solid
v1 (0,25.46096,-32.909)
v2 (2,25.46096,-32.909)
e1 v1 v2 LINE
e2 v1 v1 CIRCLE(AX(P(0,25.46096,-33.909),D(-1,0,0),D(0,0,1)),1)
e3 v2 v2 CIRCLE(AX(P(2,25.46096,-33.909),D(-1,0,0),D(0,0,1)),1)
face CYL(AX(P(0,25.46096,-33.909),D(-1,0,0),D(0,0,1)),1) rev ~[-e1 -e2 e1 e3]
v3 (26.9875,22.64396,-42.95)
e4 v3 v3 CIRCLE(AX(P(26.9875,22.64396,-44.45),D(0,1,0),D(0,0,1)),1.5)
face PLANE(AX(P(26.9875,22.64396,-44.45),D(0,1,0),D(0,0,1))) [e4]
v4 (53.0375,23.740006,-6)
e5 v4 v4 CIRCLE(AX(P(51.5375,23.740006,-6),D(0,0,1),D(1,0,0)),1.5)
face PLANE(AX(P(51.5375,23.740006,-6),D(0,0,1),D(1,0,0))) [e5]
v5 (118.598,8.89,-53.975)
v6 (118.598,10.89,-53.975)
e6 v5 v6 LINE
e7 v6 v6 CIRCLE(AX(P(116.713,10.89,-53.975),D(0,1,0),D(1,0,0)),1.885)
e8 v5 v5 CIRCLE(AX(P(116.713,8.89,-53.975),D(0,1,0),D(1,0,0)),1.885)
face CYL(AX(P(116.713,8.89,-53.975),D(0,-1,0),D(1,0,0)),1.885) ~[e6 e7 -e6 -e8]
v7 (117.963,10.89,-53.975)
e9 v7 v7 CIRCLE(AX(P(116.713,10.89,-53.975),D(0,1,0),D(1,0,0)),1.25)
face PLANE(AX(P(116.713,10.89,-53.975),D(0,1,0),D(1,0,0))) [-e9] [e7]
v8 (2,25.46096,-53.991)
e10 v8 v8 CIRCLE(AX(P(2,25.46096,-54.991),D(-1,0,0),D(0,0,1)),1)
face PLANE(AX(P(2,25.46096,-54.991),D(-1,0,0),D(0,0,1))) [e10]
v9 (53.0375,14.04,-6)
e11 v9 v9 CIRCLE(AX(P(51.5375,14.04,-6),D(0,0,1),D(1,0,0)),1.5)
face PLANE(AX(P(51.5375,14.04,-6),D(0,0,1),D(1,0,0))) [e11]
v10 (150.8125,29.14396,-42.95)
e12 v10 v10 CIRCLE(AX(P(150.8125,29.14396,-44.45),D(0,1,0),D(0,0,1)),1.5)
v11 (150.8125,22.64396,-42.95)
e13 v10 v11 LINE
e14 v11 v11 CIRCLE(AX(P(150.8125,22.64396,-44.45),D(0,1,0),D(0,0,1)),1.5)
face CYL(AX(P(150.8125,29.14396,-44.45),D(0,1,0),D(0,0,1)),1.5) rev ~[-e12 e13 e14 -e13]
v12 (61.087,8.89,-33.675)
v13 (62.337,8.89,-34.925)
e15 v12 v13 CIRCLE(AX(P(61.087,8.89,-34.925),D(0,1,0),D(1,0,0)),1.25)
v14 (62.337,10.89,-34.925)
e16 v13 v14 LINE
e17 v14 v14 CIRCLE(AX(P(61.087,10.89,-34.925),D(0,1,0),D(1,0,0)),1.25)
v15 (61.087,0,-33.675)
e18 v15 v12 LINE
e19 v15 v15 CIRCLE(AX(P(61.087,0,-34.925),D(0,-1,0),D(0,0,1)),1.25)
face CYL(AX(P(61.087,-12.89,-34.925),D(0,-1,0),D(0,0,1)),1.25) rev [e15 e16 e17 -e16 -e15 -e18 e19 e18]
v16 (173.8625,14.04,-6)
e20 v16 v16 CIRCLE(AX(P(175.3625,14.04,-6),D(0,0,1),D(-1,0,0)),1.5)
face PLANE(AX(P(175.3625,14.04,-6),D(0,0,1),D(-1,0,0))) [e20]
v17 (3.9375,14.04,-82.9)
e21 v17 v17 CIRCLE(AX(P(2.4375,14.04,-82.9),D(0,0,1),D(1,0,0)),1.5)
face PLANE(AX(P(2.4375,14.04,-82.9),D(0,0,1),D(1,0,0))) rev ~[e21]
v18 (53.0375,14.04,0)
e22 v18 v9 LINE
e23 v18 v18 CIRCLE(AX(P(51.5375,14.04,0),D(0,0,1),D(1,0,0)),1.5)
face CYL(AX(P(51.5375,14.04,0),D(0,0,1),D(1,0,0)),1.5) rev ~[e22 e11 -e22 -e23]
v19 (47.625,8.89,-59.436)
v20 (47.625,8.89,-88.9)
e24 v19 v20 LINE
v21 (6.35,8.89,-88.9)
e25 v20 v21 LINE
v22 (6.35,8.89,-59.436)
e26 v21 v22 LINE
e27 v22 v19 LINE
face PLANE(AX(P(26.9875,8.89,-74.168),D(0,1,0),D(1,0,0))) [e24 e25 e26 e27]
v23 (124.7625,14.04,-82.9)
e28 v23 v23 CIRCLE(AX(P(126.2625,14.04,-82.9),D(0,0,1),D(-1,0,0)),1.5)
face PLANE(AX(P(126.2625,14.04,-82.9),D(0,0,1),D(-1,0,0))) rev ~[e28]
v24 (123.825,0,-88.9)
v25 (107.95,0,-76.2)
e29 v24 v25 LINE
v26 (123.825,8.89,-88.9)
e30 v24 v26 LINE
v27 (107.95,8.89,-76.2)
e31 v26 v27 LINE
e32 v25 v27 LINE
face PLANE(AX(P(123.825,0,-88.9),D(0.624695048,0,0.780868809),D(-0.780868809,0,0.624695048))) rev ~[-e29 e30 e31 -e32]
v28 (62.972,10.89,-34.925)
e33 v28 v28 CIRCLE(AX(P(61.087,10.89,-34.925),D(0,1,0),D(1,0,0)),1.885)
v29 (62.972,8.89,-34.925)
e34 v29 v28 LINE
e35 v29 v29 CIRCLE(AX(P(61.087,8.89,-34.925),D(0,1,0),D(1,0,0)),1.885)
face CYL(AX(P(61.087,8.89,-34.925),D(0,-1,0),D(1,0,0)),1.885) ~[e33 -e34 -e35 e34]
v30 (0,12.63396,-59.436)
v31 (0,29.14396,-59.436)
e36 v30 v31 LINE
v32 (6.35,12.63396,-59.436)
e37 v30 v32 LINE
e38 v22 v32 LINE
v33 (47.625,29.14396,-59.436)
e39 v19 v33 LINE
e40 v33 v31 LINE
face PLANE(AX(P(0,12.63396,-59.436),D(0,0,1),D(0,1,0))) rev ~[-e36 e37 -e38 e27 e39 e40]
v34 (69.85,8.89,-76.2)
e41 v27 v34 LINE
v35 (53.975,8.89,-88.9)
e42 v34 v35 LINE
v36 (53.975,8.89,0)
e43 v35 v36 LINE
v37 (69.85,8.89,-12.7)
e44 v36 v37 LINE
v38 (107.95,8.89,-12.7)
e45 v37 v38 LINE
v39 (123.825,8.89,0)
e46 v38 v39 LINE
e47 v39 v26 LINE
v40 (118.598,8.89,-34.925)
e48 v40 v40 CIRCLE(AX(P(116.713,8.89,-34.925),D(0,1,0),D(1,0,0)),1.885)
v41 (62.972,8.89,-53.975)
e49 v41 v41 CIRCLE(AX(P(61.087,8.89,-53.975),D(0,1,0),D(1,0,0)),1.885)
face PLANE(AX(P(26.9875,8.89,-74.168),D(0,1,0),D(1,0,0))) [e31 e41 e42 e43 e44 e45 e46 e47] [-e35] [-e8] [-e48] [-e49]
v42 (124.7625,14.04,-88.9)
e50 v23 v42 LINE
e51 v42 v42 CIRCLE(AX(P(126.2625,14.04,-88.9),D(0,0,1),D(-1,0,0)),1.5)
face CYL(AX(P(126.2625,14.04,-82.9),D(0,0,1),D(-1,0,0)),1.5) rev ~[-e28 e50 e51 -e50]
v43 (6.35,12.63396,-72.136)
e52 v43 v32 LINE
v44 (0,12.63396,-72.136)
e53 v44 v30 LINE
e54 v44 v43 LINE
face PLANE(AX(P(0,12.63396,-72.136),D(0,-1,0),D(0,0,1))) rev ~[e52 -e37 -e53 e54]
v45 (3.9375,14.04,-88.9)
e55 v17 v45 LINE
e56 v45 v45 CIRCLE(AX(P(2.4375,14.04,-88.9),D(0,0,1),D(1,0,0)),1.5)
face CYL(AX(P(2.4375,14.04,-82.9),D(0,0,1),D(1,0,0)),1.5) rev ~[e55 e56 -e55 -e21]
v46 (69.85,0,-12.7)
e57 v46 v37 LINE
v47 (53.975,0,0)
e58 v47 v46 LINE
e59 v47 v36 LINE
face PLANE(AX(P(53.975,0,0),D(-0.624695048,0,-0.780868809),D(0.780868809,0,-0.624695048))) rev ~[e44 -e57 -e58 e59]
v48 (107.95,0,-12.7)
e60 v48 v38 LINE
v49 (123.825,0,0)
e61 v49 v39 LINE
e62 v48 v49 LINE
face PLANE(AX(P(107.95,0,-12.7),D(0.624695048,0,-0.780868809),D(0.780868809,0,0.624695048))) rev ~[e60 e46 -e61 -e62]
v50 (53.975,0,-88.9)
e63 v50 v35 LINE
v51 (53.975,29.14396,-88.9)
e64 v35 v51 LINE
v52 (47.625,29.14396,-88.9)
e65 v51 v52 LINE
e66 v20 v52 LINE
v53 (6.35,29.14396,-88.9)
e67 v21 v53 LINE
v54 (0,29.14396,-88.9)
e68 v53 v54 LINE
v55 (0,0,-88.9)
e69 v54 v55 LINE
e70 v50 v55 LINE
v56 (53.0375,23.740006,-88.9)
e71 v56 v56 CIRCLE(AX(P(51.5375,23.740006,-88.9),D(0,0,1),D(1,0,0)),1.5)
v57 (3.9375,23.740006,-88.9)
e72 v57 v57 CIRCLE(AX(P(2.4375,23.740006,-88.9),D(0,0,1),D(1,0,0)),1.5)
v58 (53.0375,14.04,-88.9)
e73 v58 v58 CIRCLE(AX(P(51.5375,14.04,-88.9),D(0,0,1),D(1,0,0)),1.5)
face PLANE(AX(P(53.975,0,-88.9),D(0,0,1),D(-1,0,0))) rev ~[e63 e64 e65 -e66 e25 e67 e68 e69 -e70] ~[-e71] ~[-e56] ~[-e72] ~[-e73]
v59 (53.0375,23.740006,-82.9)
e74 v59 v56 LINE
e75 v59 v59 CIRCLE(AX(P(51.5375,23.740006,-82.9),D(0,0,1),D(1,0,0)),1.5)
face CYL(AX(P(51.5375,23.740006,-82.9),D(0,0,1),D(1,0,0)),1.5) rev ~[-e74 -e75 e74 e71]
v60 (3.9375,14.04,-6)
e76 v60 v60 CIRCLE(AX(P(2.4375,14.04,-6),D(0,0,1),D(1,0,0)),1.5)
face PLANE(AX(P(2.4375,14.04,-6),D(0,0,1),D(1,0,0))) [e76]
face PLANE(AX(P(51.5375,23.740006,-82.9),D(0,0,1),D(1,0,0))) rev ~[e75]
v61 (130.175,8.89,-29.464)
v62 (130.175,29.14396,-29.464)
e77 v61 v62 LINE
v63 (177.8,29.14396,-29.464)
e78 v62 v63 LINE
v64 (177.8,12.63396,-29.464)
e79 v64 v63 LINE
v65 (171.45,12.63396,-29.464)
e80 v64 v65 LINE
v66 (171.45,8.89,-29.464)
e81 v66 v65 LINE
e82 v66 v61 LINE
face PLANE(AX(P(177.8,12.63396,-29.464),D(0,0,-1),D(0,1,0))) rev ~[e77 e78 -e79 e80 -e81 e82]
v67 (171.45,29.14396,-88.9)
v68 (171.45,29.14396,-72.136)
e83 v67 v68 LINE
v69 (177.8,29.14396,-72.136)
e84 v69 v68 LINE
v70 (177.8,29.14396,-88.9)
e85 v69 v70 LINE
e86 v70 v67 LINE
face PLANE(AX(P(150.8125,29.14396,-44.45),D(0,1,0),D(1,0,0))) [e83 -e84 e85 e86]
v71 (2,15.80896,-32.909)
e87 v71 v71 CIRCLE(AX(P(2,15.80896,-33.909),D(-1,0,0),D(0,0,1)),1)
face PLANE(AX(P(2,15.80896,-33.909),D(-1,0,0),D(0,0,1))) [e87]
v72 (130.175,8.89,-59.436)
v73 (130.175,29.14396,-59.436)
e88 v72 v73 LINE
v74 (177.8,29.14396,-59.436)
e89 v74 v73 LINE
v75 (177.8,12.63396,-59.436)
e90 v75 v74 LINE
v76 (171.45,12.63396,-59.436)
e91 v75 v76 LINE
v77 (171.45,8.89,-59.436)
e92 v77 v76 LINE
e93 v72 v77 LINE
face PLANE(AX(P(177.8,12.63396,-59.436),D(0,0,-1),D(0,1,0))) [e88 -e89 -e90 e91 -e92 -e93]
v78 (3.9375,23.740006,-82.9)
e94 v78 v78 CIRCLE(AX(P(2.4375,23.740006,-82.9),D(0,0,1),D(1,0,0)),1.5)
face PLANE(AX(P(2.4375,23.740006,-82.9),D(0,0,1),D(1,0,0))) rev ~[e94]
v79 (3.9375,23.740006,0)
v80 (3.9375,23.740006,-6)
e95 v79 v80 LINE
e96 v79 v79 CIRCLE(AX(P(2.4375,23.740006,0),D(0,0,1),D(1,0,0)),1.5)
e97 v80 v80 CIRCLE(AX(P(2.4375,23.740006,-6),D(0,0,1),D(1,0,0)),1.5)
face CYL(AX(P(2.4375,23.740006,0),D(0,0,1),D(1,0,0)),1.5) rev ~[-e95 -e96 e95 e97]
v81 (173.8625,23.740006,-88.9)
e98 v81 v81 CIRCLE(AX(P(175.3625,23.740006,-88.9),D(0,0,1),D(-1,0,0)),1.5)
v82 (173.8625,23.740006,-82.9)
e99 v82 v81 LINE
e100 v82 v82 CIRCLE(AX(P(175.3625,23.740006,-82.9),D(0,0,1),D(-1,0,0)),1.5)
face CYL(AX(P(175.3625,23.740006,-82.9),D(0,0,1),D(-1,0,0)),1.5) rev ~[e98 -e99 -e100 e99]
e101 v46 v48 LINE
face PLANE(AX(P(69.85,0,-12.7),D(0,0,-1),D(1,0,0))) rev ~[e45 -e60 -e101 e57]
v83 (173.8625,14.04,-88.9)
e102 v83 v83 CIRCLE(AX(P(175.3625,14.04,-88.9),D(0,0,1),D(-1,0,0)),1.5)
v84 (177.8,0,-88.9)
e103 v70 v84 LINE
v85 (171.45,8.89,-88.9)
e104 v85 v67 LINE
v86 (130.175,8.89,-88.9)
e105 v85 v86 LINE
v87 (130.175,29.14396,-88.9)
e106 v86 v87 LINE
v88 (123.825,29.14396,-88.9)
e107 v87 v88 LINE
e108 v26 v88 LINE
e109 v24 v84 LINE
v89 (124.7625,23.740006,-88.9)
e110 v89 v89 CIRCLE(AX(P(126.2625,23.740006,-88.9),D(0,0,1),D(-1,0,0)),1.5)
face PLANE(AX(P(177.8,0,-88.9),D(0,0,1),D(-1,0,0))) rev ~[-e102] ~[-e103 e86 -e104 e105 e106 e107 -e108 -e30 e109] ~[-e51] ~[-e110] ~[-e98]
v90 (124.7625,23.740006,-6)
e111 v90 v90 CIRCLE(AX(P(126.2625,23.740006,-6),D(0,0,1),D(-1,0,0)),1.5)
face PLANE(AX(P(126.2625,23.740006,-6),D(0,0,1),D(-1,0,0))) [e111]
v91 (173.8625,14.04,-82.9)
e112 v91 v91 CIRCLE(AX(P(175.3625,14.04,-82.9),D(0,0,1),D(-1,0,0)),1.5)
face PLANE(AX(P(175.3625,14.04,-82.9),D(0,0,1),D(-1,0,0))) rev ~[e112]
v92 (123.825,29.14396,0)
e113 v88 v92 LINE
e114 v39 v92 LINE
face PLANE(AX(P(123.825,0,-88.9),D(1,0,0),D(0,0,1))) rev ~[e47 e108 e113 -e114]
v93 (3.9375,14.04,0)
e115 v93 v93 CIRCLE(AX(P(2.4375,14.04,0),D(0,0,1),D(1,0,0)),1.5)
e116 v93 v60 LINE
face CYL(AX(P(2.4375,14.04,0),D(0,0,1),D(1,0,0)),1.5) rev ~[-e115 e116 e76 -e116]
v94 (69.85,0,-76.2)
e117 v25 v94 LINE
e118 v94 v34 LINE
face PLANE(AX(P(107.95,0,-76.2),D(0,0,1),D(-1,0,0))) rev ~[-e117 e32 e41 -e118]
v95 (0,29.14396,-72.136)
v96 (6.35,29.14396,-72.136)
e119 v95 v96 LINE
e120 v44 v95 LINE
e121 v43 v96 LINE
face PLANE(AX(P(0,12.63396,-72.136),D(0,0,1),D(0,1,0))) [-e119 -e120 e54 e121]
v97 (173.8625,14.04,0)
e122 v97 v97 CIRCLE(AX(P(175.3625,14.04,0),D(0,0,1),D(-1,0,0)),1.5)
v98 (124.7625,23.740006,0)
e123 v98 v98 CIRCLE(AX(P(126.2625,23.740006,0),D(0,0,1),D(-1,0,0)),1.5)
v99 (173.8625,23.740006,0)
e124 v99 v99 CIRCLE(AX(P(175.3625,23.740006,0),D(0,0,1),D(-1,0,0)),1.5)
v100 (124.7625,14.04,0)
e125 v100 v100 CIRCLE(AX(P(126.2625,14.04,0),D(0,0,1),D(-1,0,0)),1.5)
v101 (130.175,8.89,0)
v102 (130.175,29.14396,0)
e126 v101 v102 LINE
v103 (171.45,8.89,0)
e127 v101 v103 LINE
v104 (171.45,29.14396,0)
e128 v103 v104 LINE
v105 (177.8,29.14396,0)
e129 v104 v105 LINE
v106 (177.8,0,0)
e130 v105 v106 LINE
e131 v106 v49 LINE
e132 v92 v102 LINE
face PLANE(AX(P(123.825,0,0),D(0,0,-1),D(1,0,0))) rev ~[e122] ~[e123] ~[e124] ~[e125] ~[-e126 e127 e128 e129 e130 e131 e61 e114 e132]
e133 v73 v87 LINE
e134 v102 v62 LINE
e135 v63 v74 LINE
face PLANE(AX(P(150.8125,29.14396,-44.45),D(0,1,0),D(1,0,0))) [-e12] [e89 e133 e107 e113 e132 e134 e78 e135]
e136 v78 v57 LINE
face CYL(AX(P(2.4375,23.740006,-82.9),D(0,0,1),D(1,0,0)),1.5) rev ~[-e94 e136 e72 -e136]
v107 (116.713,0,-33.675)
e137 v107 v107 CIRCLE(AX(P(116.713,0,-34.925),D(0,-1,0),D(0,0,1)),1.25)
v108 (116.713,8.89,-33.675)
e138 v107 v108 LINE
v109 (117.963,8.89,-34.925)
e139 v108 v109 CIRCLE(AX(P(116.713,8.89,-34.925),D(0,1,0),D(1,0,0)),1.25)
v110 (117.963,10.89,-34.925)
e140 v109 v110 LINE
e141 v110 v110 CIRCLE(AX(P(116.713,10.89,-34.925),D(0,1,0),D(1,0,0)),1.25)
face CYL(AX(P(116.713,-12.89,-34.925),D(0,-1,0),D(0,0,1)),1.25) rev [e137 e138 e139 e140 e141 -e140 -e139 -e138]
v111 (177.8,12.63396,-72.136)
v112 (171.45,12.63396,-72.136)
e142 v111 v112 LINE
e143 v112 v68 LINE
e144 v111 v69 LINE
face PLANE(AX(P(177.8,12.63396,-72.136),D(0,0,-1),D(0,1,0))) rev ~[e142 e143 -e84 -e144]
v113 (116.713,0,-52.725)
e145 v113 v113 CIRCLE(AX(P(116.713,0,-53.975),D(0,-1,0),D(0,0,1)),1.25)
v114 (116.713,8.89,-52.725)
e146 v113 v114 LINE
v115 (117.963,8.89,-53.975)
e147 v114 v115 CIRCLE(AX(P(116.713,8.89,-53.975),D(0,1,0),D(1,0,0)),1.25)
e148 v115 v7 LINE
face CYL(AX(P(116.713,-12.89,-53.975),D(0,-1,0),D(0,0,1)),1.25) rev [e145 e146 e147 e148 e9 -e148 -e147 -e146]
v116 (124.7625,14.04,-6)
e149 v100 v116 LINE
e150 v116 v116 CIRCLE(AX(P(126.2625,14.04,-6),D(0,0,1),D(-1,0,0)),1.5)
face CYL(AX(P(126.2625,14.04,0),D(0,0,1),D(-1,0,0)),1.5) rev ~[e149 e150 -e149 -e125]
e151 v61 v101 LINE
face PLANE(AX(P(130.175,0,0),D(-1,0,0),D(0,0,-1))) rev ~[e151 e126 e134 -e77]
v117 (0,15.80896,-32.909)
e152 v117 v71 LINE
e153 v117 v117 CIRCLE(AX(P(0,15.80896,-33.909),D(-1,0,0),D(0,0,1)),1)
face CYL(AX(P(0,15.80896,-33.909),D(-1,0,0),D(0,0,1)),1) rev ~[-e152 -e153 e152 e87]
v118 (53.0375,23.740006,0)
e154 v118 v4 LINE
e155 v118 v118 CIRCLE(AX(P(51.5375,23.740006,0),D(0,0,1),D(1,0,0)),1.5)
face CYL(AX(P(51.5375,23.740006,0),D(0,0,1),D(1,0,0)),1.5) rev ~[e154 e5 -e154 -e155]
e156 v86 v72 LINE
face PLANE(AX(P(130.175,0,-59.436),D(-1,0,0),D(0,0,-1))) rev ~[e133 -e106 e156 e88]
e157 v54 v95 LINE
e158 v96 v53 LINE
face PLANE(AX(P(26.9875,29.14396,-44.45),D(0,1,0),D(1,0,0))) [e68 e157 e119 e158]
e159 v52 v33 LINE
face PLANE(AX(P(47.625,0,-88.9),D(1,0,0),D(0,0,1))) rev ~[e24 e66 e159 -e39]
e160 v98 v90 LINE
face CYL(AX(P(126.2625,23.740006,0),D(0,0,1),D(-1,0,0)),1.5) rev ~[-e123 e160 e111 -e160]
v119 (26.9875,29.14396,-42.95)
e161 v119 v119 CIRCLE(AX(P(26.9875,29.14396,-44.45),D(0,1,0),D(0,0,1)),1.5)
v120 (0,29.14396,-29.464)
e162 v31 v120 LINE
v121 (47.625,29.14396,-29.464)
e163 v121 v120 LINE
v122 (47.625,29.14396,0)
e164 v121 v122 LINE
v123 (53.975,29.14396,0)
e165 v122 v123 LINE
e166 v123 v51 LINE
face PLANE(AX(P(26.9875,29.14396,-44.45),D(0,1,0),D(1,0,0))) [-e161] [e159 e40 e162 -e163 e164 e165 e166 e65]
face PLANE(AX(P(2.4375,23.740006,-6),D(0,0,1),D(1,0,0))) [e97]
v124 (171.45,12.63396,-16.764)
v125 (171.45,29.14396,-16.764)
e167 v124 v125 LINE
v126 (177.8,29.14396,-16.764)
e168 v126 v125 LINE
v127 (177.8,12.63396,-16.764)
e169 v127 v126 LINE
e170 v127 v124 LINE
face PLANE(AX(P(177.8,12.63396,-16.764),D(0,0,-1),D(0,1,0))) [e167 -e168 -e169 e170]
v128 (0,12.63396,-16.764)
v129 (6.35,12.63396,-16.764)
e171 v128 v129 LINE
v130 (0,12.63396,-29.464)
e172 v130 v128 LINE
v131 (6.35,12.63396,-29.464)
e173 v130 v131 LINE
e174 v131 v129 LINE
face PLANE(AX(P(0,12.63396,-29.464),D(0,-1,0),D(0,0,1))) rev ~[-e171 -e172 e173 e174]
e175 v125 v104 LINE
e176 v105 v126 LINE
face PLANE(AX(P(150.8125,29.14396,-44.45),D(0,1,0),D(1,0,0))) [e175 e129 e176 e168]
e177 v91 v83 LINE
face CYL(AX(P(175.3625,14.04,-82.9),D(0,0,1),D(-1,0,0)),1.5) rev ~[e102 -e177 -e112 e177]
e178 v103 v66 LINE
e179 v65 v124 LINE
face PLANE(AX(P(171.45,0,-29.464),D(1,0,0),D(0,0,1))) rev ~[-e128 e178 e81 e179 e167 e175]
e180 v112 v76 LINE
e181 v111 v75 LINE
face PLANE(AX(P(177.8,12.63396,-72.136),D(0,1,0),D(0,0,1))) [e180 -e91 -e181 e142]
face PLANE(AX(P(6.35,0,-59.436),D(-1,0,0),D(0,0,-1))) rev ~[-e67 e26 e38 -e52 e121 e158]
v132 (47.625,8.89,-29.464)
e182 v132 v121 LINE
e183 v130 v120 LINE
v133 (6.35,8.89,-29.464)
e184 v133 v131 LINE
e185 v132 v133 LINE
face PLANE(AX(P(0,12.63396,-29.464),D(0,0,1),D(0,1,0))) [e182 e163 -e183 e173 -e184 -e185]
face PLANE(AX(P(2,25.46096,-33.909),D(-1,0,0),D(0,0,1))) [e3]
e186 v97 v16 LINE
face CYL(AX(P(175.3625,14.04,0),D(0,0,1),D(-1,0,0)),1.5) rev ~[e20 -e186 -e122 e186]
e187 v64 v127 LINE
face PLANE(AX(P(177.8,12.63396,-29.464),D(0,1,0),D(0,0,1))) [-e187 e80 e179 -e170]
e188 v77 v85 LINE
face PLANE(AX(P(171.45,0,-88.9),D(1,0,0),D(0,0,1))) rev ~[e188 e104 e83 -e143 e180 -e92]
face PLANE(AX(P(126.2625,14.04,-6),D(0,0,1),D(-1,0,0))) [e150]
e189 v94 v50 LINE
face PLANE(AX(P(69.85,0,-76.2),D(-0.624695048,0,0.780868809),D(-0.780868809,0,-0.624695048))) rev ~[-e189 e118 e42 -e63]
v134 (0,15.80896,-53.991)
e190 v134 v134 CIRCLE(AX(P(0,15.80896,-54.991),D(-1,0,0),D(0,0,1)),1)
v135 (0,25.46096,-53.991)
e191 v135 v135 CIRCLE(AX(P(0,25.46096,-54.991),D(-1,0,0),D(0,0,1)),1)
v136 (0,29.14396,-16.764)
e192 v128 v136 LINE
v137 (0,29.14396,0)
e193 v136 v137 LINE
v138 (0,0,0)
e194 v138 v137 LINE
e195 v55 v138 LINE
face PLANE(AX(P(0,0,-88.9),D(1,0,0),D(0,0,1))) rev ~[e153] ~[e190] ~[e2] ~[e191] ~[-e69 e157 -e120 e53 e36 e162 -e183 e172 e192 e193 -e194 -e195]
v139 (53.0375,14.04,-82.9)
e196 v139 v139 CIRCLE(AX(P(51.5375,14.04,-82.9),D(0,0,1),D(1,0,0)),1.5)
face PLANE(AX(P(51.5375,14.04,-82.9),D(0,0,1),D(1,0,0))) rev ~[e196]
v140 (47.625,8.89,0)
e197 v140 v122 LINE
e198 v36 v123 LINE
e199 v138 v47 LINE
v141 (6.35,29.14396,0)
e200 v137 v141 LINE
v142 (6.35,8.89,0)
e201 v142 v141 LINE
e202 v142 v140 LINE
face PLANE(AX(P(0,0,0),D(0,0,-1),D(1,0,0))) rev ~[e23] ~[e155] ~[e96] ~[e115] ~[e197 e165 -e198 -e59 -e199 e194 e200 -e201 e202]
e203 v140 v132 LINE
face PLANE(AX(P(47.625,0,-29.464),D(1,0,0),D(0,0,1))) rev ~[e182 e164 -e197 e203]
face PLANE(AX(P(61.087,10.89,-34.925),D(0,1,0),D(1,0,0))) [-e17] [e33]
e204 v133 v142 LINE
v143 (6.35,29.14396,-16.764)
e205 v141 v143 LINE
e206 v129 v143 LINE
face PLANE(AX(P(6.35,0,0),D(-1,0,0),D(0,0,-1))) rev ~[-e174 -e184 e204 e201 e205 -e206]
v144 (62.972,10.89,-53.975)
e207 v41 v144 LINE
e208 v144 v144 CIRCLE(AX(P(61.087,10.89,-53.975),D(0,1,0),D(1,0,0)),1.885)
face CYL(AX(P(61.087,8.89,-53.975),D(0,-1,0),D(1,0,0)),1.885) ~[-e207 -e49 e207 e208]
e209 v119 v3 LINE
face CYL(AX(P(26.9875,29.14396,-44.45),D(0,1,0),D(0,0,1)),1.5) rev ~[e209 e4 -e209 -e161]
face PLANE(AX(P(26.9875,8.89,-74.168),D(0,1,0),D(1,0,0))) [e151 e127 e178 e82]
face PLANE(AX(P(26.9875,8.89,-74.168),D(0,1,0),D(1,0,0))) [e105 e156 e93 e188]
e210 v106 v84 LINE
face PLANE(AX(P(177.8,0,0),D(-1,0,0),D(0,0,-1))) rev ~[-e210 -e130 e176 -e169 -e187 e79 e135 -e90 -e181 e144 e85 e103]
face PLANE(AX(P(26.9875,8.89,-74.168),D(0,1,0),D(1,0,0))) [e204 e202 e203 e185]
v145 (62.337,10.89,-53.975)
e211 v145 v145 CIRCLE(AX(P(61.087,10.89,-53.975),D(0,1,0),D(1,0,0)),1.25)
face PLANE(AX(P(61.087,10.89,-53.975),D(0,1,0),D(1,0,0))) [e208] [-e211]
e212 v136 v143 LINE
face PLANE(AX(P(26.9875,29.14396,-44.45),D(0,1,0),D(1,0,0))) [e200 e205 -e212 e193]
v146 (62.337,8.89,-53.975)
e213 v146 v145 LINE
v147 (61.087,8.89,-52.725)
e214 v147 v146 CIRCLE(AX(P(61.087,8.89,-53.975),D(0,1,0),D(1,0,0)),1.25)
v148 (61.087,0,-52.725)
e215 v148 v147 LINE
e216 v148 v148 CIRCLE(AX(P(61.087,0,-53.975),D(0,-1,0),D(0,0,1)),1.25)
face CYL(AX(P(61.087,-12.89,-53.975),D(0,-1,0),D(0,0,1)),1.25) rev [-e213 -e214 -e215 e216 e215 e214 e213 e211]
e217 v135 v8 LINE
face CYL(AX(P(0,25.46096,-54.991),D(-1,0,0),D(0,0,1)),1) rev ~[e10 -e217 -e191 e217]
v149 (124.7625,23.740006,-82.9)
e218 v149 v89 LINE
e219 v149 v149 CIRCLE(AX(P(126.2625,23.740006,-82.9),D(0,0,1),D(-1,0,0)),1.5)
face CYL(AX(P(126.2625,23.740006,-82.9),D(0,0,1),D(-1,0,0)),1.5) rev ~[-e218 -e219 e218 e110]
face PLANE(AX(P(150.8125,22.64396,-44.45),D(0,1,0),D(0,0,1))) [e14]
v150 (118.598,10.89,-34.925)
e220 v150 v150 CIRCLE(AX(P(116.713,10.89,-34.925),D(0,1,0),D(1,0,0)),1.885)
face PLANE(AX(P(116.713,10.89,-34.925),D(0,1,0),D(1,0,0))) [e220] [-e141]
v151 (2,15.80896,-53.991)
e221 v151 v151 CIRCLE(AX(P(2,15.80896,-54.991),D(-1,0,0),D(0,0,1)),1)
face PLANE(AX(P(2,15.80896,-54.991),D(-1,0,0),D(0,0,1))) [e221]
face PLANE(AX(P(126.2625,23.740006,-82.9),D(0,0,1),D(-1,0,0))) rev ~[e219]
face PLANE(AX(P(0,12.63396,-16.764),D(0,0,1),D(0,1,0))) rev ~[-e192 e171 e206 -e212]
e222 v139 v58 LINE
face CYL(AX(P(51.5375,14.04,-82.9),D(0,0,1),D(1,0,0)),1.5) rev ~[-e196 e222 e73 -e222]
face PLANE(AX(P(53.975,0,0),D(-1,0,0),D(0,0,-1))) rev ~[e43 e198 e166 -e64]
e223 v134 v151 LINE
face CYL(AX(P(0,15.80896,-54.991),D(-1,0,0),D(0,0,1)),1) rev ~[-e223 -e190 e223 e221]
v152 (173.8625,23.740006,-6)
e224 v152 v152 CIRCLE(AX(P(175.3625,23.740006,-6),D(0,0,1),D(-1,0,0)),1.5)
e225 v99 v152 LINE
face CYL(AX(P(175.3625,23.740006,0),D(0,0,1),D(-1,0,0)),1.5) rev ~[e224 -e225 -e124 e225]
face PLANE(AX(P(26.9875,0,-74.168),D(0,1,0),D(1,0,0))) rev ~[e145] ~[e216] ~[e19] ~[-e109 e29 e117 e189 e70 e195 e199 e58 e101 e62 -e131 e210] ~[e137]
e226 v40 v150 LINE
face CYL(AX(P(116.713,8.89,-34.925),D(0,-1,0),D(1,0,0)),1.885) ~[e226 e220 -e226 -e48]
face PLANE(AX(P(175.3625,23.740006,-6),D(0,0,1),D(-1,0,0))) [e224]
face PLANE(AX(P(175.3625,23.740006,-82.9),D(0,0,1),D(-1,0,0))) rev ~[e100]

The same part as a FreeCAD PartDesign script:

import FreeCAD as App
import Part
import Sketcher

V = App.Vector
Q = App.Units.Quantity

doc = App.newDocument("Part")
params = doc.addObject("Spreadsheet::Sheet", "Params")
for row, (alias, value) in enumerate([
    ("sketch1_width", "1.5 in"),
    ("sketch1_height", "3.5 in"),
    ("sketch1_width2", "2.125 in"),
    ("pad1_length", "0.35 in"),
    ("sketch2_height", "3.5 in"),
    ("sketch2_width", "0.25 in"),
    ("sketch2_height2", "1.16 in"),
    ("pad2_length", "1.1474 in"),
    ("pocket1_length", "6.5 mm"),
    ("pocket2_length", "6 mm"),
    ("pad3_length", "2 mm"),
    ("pocket3_length", "21.78 mm"),
    ("pocket4_length", "6 mm"),
    ("sketch8_height", "0.5 in"),
    ("sketch8_width", "0.65 in"),
    ("pocket5_length", "0.25 in"),
    ("sketch9_height", "0.5 in"),
    ("sketch9_width", "0.65 in"),
    ("pocket6_length", "0.25 in"),
    ("pocket7_length", "2 mm"),
], start=1):
    params.set(f"A{row}", alias)
    params.set(f"B{row}", "=" + value)
    params.setAlias(f"B{row}", alias)

body = doc.addObject("PartDesign::Body", "Body")

sketch1 = body.newObject("Sketcher::SketchObject", "Sketch")
sketch1.AttachmentSupport = (doc.getObject("XZ_Plane"), [""])
sketch1.MapMode = "FlatFace"
sketch1.addGeometry([
    Part.LineSegment(V(0, -89, 0), V(0, 0, 0)),
    Part.LineSegment(V(0, 0, 0), V(54, 0, 0)),
    Part.LineSegment(V(54, 0, 0), V(70, -13, 0)),
    Part.LineSegment(V(70, -13, 0), V(108, -13, 0)),
    Part.LineSegment(V(108, -13, 0), V(124, 0, 0)),
    Part.LineSegment(V(124, 0, 0), V(178, 0, 0)),
    Part.LineSegment(V(178, 0, 0), V(178, -89, 0)),
    Part.LineSegment(V(178, -89, 0), V(124, -89, 0)),
    Part.LineSegment(V(124, -89, 0), V(108, -76, 0)),
    Part.LineSegment(V(108, -76, 0), V(70, -76, 0)),
    Part.LineSegment(V(70, -76, 0), V(54, -89, 0)),
    Part.LineSegment(V(54, -89, 0), V(0, -89, 0)),
], False)
sketch1.addConstraint([
    Sketcher.Constraint("Coincident", 0, 2, 1, 1),
    Sketcher.Constraint("Coincident", 1, 2, 2, 1),
    Sketcher.Constraint("Coincident", 2, 2, 3, 1),
    Sketcher.Constraint("Coincident", 3, 2, 4, 1),
    Sketcher.Constraint("Coincident", 4, 2, 5, 1),
    Sketcher.Constraint("Coincident", 5, 2, 6, 1),
    Sketcher.Constraint("Coincident", 6, 2, 7, 1),
    Sketcher.Constraint("Coincident", 7, 2, 8, 1),
    Sketcher.Constraint("Coincident", 8, 2, 9, 1),
    Sketcher.Constraint("Coincident", 9, 2, 10, 1),
    Sketcher.Constraint("Coincident", 10, 2, 11, 1),
    Sketcher.Constraint("Coincident", 11, 2, 0, 1),
    Sketcher.Constraint("Vertical", 0),
    Sketcher.Constraint("Horizontal", 1),
    Sketcher.Constraint("Horizontal", 3),
    Sketcher.Constraint("Horizontal", 5),
    Sketcher.Constraint("Vertical", 6),
    Sketcher.Constraint("Horizontal", 7),
    Sketcher.Constraint("Horizontal", 9),
    Sketcher.Constraint("Horizontal", 11),
    Sketcher.Constraint("Coincident", 0, 2, -1, 1),
    Sketcher.Constraint("PointOnObject", 4, 2, -1),
    Sketcher.Constraint("Parallel", 2, 8),
    Sketcher.Constraint("Parallel", 4, 10),
    Sketcher.Constraint("Horizontal", 7, 2, 10, 2),
    Sketcher.Constraint("Vertical", 4, 2, 7, 2),
    Sketcher.Constraint("Vertical", 3, 2, 8, 2),
    Sketcher.Constraint("Vertical", 2, 2, 9, 2),
    Sketcher.Constraint("Vertical", 1, 2, 10, 2),
    Sketcher.Constraint("Equal", 1, 5),
    Sketcher.Constraint("DistanceX", 3, 1, 3, 2, Q("1.5 in")),
    Sketcher.Constraint("DistanceY", 0, 1, 0, 2, Q("3.5 in")),
    Sketcher.Constraint("DistanceX", -1, 1, 5, 2, Q("7 in")),
    Sketcher.Constraint("DistanceY", 8, 2, -1, 1, Q("3 in")),
    Sketcher.Constraint("DistanceX", 1, 1, 1, 2, Q("2.125 in")),
])
sketch1.setExpression("Constraints[30]", "Params.sketch1_width")
sketch1.setExpression("Constraints[31]", "Params.sketch1_height")
sketch1.setExpression("Constraints[34]", "Params.sketch1_width2")
pad1 = body.newObject("PartDesign::Pad", "Pad")
pad1.Profile = sketch1
pad1.setExpression("Length", "Params.pad1_length")
pad1.Reversed = True

sketch2 = body.newObject("Sketcher::SketchObject", "Sketch001")
sketch2.AttachmentSupport = (doc.getObject("XZ_Plane"), [""])
sketch2.MapMode = "FlatFace"
sketch2.addGeometry([
    Part.LineSegment(V(0, -89, 0), V(0, 0, 0)),
    Part.LineSegment(V(0, 0, 0), V(6, 0, 0)),
    Part.LineSegment(V(6, 0, 0), V(6, -29, 0)),
    Part.LineSegment(V(6, -29, 0), V(48, -29, 0)),
    Part.LineSegment(V(48, -29, 0), V(48, 0, 0)),
    Part.LineSegment(V(48, 0, 0), V(54, 0, 0)),
    Part.LineSegment(V(54, 0, 0), V(54, -89, 0)),
    Part.LineSegment(V(54, -89, 0), V(48, -89, 0)),
    Part.LineSegment(V(48, -89, 0), V(48, -59, 0)),
    Part.LineSegment(V(48, -59, 0), V(6, -59, 0)),
    Part.LineSegment(V(6, -59, 0), V(6, -89, 0)),
    Part.LineSegment(V(6, -89, 0), V(0, -89, 0)),
    Part.LineSegment(V(124, 0, 0), V(130, 0, 0)),
    Part.LineSegment(V(130, 0, 0), V(130, -29, 0)),
    Part.LineSegment(V(130, -29, 0), V(171, -29, 0)),
    Part.LineSegment(V(171, -29, 0), V(171, 0, 0)),
    Part.LineSegment(V(171, 0, 0), V(178, 0, 0)),
    Part.LineSegment(V(178, 0, 0), V(178, -89, 0)),
    Part.LineSegment(V(178, -89, 0), V(171, -89, 0)),
    Part.LineSegment(V(171, -89, 0), V(171, -59, 0)),
    Part.LineSegment(V(171, -59, 0), V(130, -59, 0)),
    Part.LineSegment(V(130, -59, 0), V(130, -89, 0)),
    Part.LineSegment(V(130, -89, 0), V(124, -89, 0)),
    Part.LineSegment(V(124, -89, 0), V(124, 0, 0)),
], False)
sketch2.addConstraint([
    Sketcher.Constraint("Coincident", 0, 2, 1, 1),
    Sketcher.Constraint("Coincident", 1, 2, 2, 1),
    Sketcher.Constraint("Coincident", 2, 2, 3, 1),
    Sketcher.Constraint("Coincident", 3, 2, 4, 1),
    Sketcher.Constraint("Coincident", 4, 2, 5, 1),
    Sketcher.Constraint("Coincident", 5, 2, 6, 1),
    Sketcher.Constraint("Coincident", 6, 2, 7, 1),
    Sketcher.Constraint("Coincident", 7, 2, 8, 1),
    Sketcher.Constraint("Coincident", 8, 2, 9, 1),
    Sketcher.Constraint("Coincident", 9, 2, 10, 1),
    Sketcher.Constraint("Coincident", 10, 2, 11, 1),
    Sketcher.Constraint("Coincident", 11, 2, 0, 1),
    Sketcher.Constraint("Coincident", 12, 2, 13, 1),
    Sketcher.Constraint("Coincident", 13, 2, 14, 1),
    Sketcher.Constraint("Coincident", 14, 2, 15, 1),
    Sketcher.Constraint("Coincident", 15, 2, 16, 1),
    Sketcher.Constraint("Coincident", 16, 2, 17, 1),
    Sketcher.Constraint("Coincident", 17, 2, 18, 1),
    Sketcher.Constraint("Coincident", 18, 2, 19, 1),
    Sketcher.Constraint("Coincident", 19, 2, 20, 1),
    Sketcher.Constraint("Coincident", 20, 2, 21, 1),
    Sketcher.Constraint("Coincident", 21, 2, 22, 1),
    Sketcher.Constraint("Coincident", 22, 2, 23, 1),
    Sketcher.Constraint("Coincident", 23, 2, 12, 1),
    Sketcher.Constraint("Vertical", 0),
    Sketcher.Constraint("Horizontal", 1),
    Sketcher.Constraint("Vertical", 2),
    Sketcher.Constraint("Horizontal", 3),
    Sketcher.Constraint("Vertical", 4),
    Sketcher.Constraint("Horizontal", 5),
    Sketcher.Constraint("Vertical", 6),
    Sketcher.Constraint("Horizontal", 7),
    Sketcher.Constraint("Vertical", 8),
    Sketcher.Constraint("Horizontal", 9),
    Sketcher.Constraint("Vertical", 10),
    Sketcher.Constraint("Horizontal", 11),
    Sketcher.Constraint("Horizontal", 12),
    Sketcher.Constraint("Vertical", 13),
    Sketcher.Constraint("Horizontal", 14),
    Sketcher.Constraint("Vertical", 15),
    Sketcher.Constraint("Horizontal", 16),
    Sketcher.Constraint("Vertical", 17),
    Sketcher.Constraint("Horizontal", 18),
    Sketcher.Constraint("Vertical", 19),
    Sketcher.Constraint("Horizontal", 20),
    Sketcher.Constraint("Vertical", 21),
    Sketcher.Constraint("Horizontal", 22),
    Sketcher.Constraint("Vertical", 23),
    Sketcher.Constraint("Coincident", 0, 2, -1, 1),
    Sketcher.Constraint("PointOnObject", 4, 2, -1),
    Sketcher.Constraint("PointOnObject", 12, 2, -1),
    Sketcher.Constraint("PointOnObject", 15, 2, -1),
    Sketcher.Constraint("Horizontal", 7, 2, 10, 2),
    Sketcher.Constraint("Horizontal", 3, 2, 13, 2),
    Sketcher.Constraint("Horizontal", 11, 2, 17, 2),
    Sketcher.Constraint("Horizontal", 9, 2, 19, 2),
    Sketcher.Constraint("Horizontal", 18, 2, 21, 2),
    Sketcher.Constraint("Vertical", 4, 2, 7, 2),
    Sketcher.Constraint("Vertical", 2, 2, 9, 2),
    Sketcher.Constraint("Vertical", 15, 2, 18, 2),
    Sketcher.Constraint("Vertical", 13, 2, 20, 2),
    Sketcher.Constraint("Equal", 1, 5),
    Sketcher.Constraint("Equal", 11, 12),
    Sketcher.Constraint("Equal", 9, 14),
    Sketcher.Constraint("Equal", 12, 16),
    Sketcher.Constraint("Equal", 4, 8),
    Sketcher.Constraint("DistanceY", 0, 1, 0, 2, Q("3.5 in")),
    Sketcher.Constraint("DistanceX", -1, 1, 16, 2, Q("7 in")),
    Sketcher.Constraint("DistanceX", 5, 2, 12, 2, Q("3 in")),
    Sketcher.Constraint("DistanceX", 1, 1, 1, 2, Q("0.25 in")),
    Sketcher.Constraint("DistanceY", 2, 2, 2, 1, Q("1.16 in")),
])
sketch2.setExpression("Constraints[66]", "Params.sketch2_height")
sketch2.setExpression("Constraints[69]", "Params.sketch2_width")
sketch2.setExpression("Constraints[70]", "Params.sketch2_height2")
pad2 = body.newObject("PartDesign::Pad", "Pad001")
pad2.Profile = sketch2
pad2.setExpression("Length", "Params.pad2_length")
pad2.Reversed = True

sketch3 = body.newObject("Sketcher::SketchObject", "Sketch002")
sketch3.AttachmentSupport = (doc.getObject("XZ_Plane"), [""])
sketch3.MapMode = "FlatFace"
sketch3.AttachmentOffset = App.Placement(V(0, 0, -1.1474 * 25.4), App.Rotation())
sketch3.addGeometry([
    Part.Circle(V(27, -44.5, 0), V(0, 0, 1), 1.5),
    Part.Circle(V(150.8, -44.5, 0), V(0, 0, 1), 1.5),
], False)
sketch3.addConstraint([
    Sketcher.Constraint("Equal", 0, 1),
    Sketcher.Constraint("Horizontal", 0, 3, 1, 3),
    Sketcher.Constraint("Diameter", 0, 3.0),
    Sketcher.Constraint("DistanceY", 0, 3, -1, 1, Q("1.75 in")),
    Sketcher.Constraint("DistanceX", -1, 1, 0, 3, Q("1.0625 in")),
    Sketcher.Constraint("DistanceX", -1, 1, 1, 3, Q("5.9375 in")),
])
pocket1 = body.newObject("PartDesign::Pocket", "Pocket")
pocket1.Profile = sketch3
pocket1.setExpression("Length", "Params.pocket1_length")
pocket1.Reversed = True

sketch4 = body.newObject("Sketcher::SketchObject", "Sketch003")
sketch4.AttachmentSupport = (doc.getObject("XY_Plane"), [""])
sketch4.MapMode = "FlatFace"
sketch4.addGeometry([
    Part.Circle(V(2.4, 14, 0), V(0, 0, 1), 1.5),
    Part.Circle(V(51.5, 14, 0), V(0, 0, 1), 1.5),
    Part.Circle(V(2.4, 23.7, 0), V(0, 0, 1), 1.5),
    Part.Circle(V(51.5, 23.7, 0), V(0, 0, 1), 1.5),
    Part.Circle(V(126.3, 23.7, 0), V(0, 0, 1), 1.5),
    Part.Circle(V(175.4, 23.7, 0), V(0, 0, 1), 1.5),
    Part.Circle(V(126.3, 14, 0), V(0, 0, 1), 1.5),
    Part.Circle(V(175.4, 14, 0), V(0, 0, 1), 1.5),
], False)
sketch4.addConstraint([
    Sketcher.Constraint("Equal", 0, 1),
    Sketcher.Constraint("Equal", 1, 2),
    Sketcher.Constraint("Equal", 2, 3),
    Sketcher.Constraint("Equal", 3, 4),
    Sketcher.Constraint("Equal", 4, 5),
    Sketcher.Constraint("Equal", 5, 6),
    Sketcher.Constraint("Equal", 6, 7),
    Sketcher.Constraint("Horizontal", 0, 3, 1, 3),
    Sketcher.Constraint("Horizontal", 2, 3, 3, 3),
    Sketcher.Constraint("Horizontal", 3, 3, 4, 3),
    Sketcher.Constraint("Horizontal", 4, 3, 5, 3),
    Sketcher.Constraint("Horizontal", 1, 3, 6, 3),
    Sketcher.Constraint("Horizontal", 6, 3, 7, 3),
    Sketcher.Constraint("Vertical", 0, 3, 2, 3),
    Sketcher.Constraint("Vertical", 1, 3, 3, 3),
    Sketcher.Constraint("Vertical", 4, 3, 6, 3),
    Sketcher.Constraint("Vertical", 5, 3, 7, 3),
    Sketcher.Constraint("Diameter", 0, 3.0),
    Sketcher.Constraint("DistanceX", 2, 3, 4, 3, Q("4.875 in")),
    Sketcher.Constraint("DistanceX", 3, 3, 5, 3, Q("4.875 in")),
    Sketcher.Constraint("DistanceX", -1, 1, 0, 3, 2.4375),
    Sketcher.Constraint("DistanceY", -1, 1, 0, 3, 14.04),
    Sketcher.Constraint("DistanceX", -1, 1, 1, 3, 51.5375),
    Sketcher.Constraint("DistanceY", -1, 1, 2, 3, 23.740006),
])
pocket2 = body.newObject("PartDesign::Pocket", "Pocket001")
pocket2.Profile = sketch4
pocket2.setExpression("Length", "Params.pocket2_length")

sketch5 = body.newObject("Sketcher::SketchObject", "Sketch004")
sketch5.AttachmentSupport = (doc.getObject("XZ_Plane"), [""])
sketch5.MapMode = "FlatFace"
sketch5.AttachmentOffset = App.Placement(V(0, 0, -0.35 * 25.4), App.Rotation())
sketch5.addGeometry([
    Part.Circle(V(61.1, -54, 0), V(0, 0, 1), 1.9),
    Part.Circle(V(61.1, -54, 0), V(0, 0, 1), 1.2),
    Part.Circle(V(61.1, -34.9, 0), V(0, 0, 1), 1.9),
    Part.Circle(V(61.1, -34.9, 0), V(0, 0, 1), 1.2),
    Part.Circle(V(116.7, -34.9, 0), V(0, 0, 1), 1.9),
    Part.Circle(V(116.7, -34.9, 0), V(0, 0, 1), 1.2),
    Part.Circle(V(116.7, -54, 0), V(0, 0, 1), 1.9),
    Part.Circle(V(116.7, -54, 0), V(0, 0, 1), 1.2),
], False)
sketch5.addConstraint([
    Sketcher.Constraint("Coincident", 1, 3, 0, 3),
    Sketcher.Constraint("Coincident", 3, 3, 2, 3),
    Sketcher.Constraint("Coincident", 5, 3, 4, 3),
    Sketcher.Constraint("Coincident", 7, 3, 6, 3),
    Sketcher.Constraint("Equal", 0, 2),
    Sketcher.Constraint("Equal", 1, 3),
    Sketcher.Constraint("Equal", 2, 4),
    Sketcher.Constraint("Equal", 3, 5),
    Sketcher.Constraint("Equal", 4, 6),
    Sketcher.Constraint("Equal", 5, 7),
    Sketcher.Constraint("Horizontal", 3, 3, 4, 3),
    Sketcher.Constraint("Horizontal", 1, 3, 6, 3),
    Sketcher.Constraint("Vertical", 1, 3, 2, 3),
    Sketcher.Constraint("Vertical", 5, 3, 6, 3),
    Sketcher.Constraint("Diameter", 0, 3.77),
    Sketcher.Constraint("Diameter", 1, 2.5),
    Sketcher.Constraint("DistanceY", 0, 3, 2, 3, Q("0.75 in")),
    Sketcher.Constraint("DistanceX", 2, 3, 4, 3, Q("2.19 in")),
    Sketcher.Constraint("DistanceX", -1, 1, 0, 3, Q("2.405 in")),
    Sketcher.Constraint("DistanceY", 0, 3, -1, 1, Q("2.125 in")),
])
pad3 = body.newObject("PartDesign::Pad", "Pad002")
pad3.Profile = sketch5
pad3.setExpression("Length", "Params.pad3_length")
pad3.Reversed = True

sketch6 = body.newObject("Sketcher::SketchObject", "Sketch005")
sketch6.AttachmentSupport = (doc.getObject("XZ_Plane"), [""])
sketch6.MapMode = "FlatFace"
sketch6.AttachmentOffset = App.Placement(V(0, 0, 12.89), App.Rotation())
sketch6.addGeometry([
    Part.Circle(V(61.1, -54, 0), V(0, 0, 1), 1.2),
    Part.Circle(V(61.1, -34.9, 0), V(0, 0, 1), 1.2),
    Part.Circle(V(116.7, -34.9, 0), V(0, 0, 1), 1.2),
    Part.Circle(V(116.7, -54, 0), V(0, 0, 1), 1.2),
], False)
sketch6.addConstraint([
    Sketcher.Constraint("Equal", 0, 1),
    Sketcher.Constraint("Equal", 1, 2),
    Sketcher.Constraint("Equal", 2, 3),
    Sketcher.Constraint("Horizontal", 1, 3, 2, 3),
    Sketcher.Constraint("Horizontal", 0, 3, 3, 3),
    Sketcher.Constraint("Vertical", 0, 3, 1, 3),
    Sketcher.Constraint("Vertical", 2, 3, 3, 3),
    Sketcher.Constraint("Diameter", 0, 2.5),
    Sketcher.Constraint("DistanceY", 0, 3, 1, 3, Q("0.75 in")),
    Sketcher.Constraint("DistanceX", 1, 3, 2, 3, Q("2.19 in")),
    Sketcher.Constraint("DistanceX", -1, 1, 0, 3, Q("2.405 in")),
    Sketcher.Constraint("DistanceY", 0, 3, -1, 1, Q("2.125 in")),
])
pocket3 = body.newObject("PartDesign::Pocket", "Pocket002")
pocket3.Profile = sketch6
pocket3.setExpression("Length", "Params.pocket3_length")

sketch7 = body.newObject("Sketcher::SketchObject", "Sketch006")
sketch7.AttachmentSupport = (doc.getObject("XY_Plane"), [""])
sketch7.MapMode = "FlatFace"
sketch7.AttachmentOffset = App.Placement(V(0, 0, -82.9), App.Rotation())
sketch7.addGeometry([
    Part.Circle(V(2.4, 14, 0), V(0, 0, 1), 1.5),
    Part.Circle(V(51.5, 14, 0), V(0, 0, 1), 1.5),
    Part.Circle(V(2.4, 23.7, 0), V(0, 0, 1), 1.5),
    Part.Circle(V(51.5, 23.7, 0), V(0, 0, 1), 1.5),
    Part.Circle(V(126.3, 23.7, 0), V(0, 0, 1), 1.5),
    Part.Circle(V(175.4, 23.7, 0), V(0, 0, 1), 1.5),
    Part.Circle(V(126.3, 14, 0), V(0, 0, 1), 1.5),
    Part.Circle(V(175.4, 14, 0), V(0, 0, 1), 1.5),
], False)
sketch7.addConstraint([
    Sketcher.Constraint("Equal", 0, 1),
    Sketcher.Constraint("Equal", 1, 2),
    Sketcher.Constraint("Equal", 2, 3),
    Sketcher.Constraint("Equal", 3, 4),
    Sketcher.Constraint("Equal", 4, 5),
    Sketcher.Constraint("Equal", 5, 6),
    Sketcher.Constraint("Equal", 6, 7),
    Sketcher.Constraint("Horizontal", 0, 3, 1, 3),
    Sketcher.Constraint("Horizontal", 2, 3, 3, 3),
    Sketcher.Constraint("Horizontal", 3, 3, 4, 3),
    Sketcher.Constraint("Horizontal", 4, 3, 5, 3),
    Sketcher.Constraint("Horizontal", 1, 3, 6, 3),
    Sketcher.Constraint("Horizontal", 6, 3, 7, 3),
    Sketcher.Constraint("Vertical", 0, 3, 2, 3),
    Sketcher.Constraint("Vertical", 1, 3, 3, 3),
    Sketcher.Constraint("Vertical", 4, 3, 6, 3),
    Sketcher.Constraint("Vertical", 5, 3, 7, 3),
    Sketcher.Constraint("Diameter", 0, 3.0),
    Sketcher.Constraint("DistanceX", 2, 3, 4, 3, Q("4.875 in")),
    Sketcher.Constraint("DistanceX", 3, 3, 5, 3, Q("4.875 in")),
    Sketcher.Constraint("DistanceX", -1, 1, 0, 3, 2.4375),
    Sketcher.Constraint("DistanceY", -1, 1, 0, 3, 14.04),
    Sketcher.Constraint("DistanceX", -1, 1, 1, 3, 51.5375),
    Sketcher.Constraint("DistanceY", -1, 1, 2, 3, 23.740006),
])
pocket4 = body.newObject("PartDesign::Pocket", "Pocket003")
pocket4.Profile = sketch7
pocket4.setExpression("Length", "Params.pocket4_length")

sketch8 = body.newObject("Sketcher::SketchObject", "Sketch007")
sketch8.AttachmentSupport = (doc.getObject("YZ_Plane"), [""])
sketch8.MapMode = "FlatFace"
sketch8.addGeometry([
    Part.LineSegment(V(29, -29, 0), V(13, -29, 0)),
    Part.LineSegment(V(13, -29, 0), V(13, -17, 0)),
    Part.LineSegment(V(13, -17, 0), V(29, -17, 0)),
    Part.LineSegment(V(29, -17, 0), V(29, -29, 0)),
    Part.LineSegment(V(29, -72, 0), V(13, -72, 0)),
    Part.LineSegment(V(13, -72, 0), V(13, -59, 0)),
    Part.LineSegment(V(13, -59, 0), V(29, -59, 0)),
    Part.LineSegment(V(29, -59, 0), V(29, -72, 0)),
], False)
sketch8.addConstraint([
    Sketcher.Constraint("Coincident", 0, 2, 1, 1),
    Sketcher.Constraint("Coincident", 1, 2, 2, 1),
    Sketcher.Constraint("Coincident", 2, 2, 3, 1),
    Sketcher.Constraint("Coincident", 3, 2, 0, 1),
    Sketcher.Constraint("Coincident", 4, 2, 5, 1),
    Sketcher.Constraint("Coincident", 5, 2, 6, 1),
    Sketcher.Constraint("Coincident", 6, 2, 7, 1),
    Sketcher.Constraint("Coincident", 7, 2, 4, 1),
    Sketcher.Constraint("Horizontal", 0),
    Sketcher.Constraint("Vertical", 1),
    Sketcher.Constraint("Horizontal", 2),
    Sketcher.Constraint("Vertical", 3),
    Sketcher.Constraint("Horizontal", 4),
    Sketcher.Constraint("Vertical", 5),
    Sketcher.Constraint("Horizontal", 6),
    Sketcher.Constraint("Vertical", 7),
    Sketcher.Constraint("Vertical", 1, 2, 4, 2),
    Sketcher.Constraint("Vertical", 3, 2, 6, 2),
    Sketcher.Constraint("Equal", 3, 5),
    Sketcher.Constraint("DistanceY", 1, 1, 1, 2, Q("0.5 in")),
    Sketcher.Constraint("DistanceX", 0, 2, 0, 1, Q("0.65 in")),
    Sketcher.Constraint("DistanceY", 0, 2, -1, 1, Q("1.16 in")),
    Sketcher.Constraint("DistanceY", 4, 2, -1, 1, Q("2.84 in")),
    Sketcher.Constraint("DistanceX", -1, 1, 0, 2, Q("0.4974 in")),
])
sketch8.setExpression("Constraints[19]", "Params.sketch8_height")
sketch8.setExpression("Constraints[20]", "Params.sketch8_width")
pocket5 = body.newObject("PartDesign::Pocket", "Pocket004")
pocket5.Profile = sketch8
pocket5.setExpression("Length", "Params.pocket5_length")
pocket5.Reversed = True

sketch9 = body.newObject("Sketcher::SketchObject", "Sketch008")
sketch9.AttachmentSupport = (doc.getObject("YZ_Plane"), [""])
sketch9.MapMode = "FlatFace"
sketch9.AttachmentOffset = App.Placement(V(0, 0, 7 * 25.4), App.Rotation())
sketch9.addGeometry([
    Part.LineSegment(V(29, -29, 0), V(13, -29, 0)),
    Part.LineSegment(V(13, -29, 0), V(13, -17, 0)),
    Part.LineSegment(V(13, -17, 0), V(29, -17, 0)),
    Part.LineSegment(V(29, -17, 0), V(29, -29, 0)),
    Part.LineSegment(V(29, -72, 0), V(13, -72, 0)),
    Part.LineSegment(V(13, -72, 0), V(13, -59, 0)),
    Part.LineSegment(V(13, -59, 0), V(29, -59, 0)),
    Part.LineSegment(V(29, -59, 0), V(29, -72, 0)),
], False)
sketch9.addConstraint([
    Sketcher.Constraint("Coincident", 0, 2, 1, 1),
    Sketcher.Constraint("Coincident", 1, 2, 2, 1),
    Sketcher.Constraint("Coincident", 2, 2, 3, 1),
    Sketcher.Constraint("Coincident", 3, 2, 0, 1),
    Sketcher.Constraint("Coincident", 4, 2, 5, 1),
    Sketcher.Constraint("Coincident", 5, 2, 6, 1),
    Sketcher.Constraint("Coincident", 6, 2, 7, 1),
    Sketcher.Constraint("Coincident", 7, 2, 4, 1),
    Sketcher.Constraint("Horizontal", 0),
    Sketcher.Constraint("Vertical", 1),
    Sketcher.Constraint("Horizontal", 2),
    Sketcher.Constraint("Vertical", 3),
    Sketcher.Constraint("Horizontal", 4),
    Sketcher.Constraint("Vertical", 5),
    Sketcher.Constraint("Horizontal", 6),
    Sketcher.Constraint("Vertical", 7),
    Sketcher.Constraint("Vertical", 1, 2, 4, 2),
    Sketcher.Constraint("Vertical", 3, 2, 6, 2),
    Sketcher.Constraint("Equal", 3, 5),
    Sketcher.Constraint("DistanceY", 1, 1, 1, 2, Q("0.5 in")),
    Sketcher.Constraint("DistanceX", 0, 2, 0, 1, Q("0.65 in")),
    Sketcher.Constraint("DistanceY", 0, 2, -1, 1, Q("1.16 in")),
    Sketcher.Constraint("DistanceY", 4, 2, -1, 1, Q("2.84 in")),
    Sketcher.Constraint("DistanceX", -1, 1, 0, 2, Q("0.4974 in")),
])
sketch9.setExpression("Constraints[19]", "Params.sketch9_height")
sketch9.setExpression("Constraints[20]", "Params.sketch9_width")
pocket6 = body.newObject("PartDesign::Pocket", "Pocket005")
pocket6.Profile = sketch9
pocket6.setExpression("Length", "Params.pocket6_length")

sketch10 = body.newObject("Sketcher::SketchObject", "Sketch009")
sketch10.AttachmentSupport = (doc.getObject("YZ_Plane"), [""])
sketch10.MapMode = "FlatFace"
sketch10.addGeometry([
    Part.Circle(V(25.5, -55, 0), V(0, 0, 1), 1),
    Part.Circle(V(25.5, -33.9, 0), V(0, 0, 1), 1),
    Part.Circle(V(15.8, -33.9, 0), V(0, 0, 1), 1),
    Part.Circle(V(15.8, -55, 0), V(0, 0, 1), 1),
], False)
sketch10.addConstraint([
    Sketcher.Constraint("Equal", 0, 1),
    Sketcher.Constraint("Equal", 1, 2),
    Sketcher.Constraint("Equal", 2, 3),
    Sketcher.Constraint("Horizontal", 1, 3, 2, 3),
    Sketcher.Constraint("Horizontal", 0, 3, 3, 3),
    Sketcher.Constraint("Vertical", 0, 3, 1, 3),
    Sketcher.Constraint("Vertical", 2, 3, 3, 3),
    Sketcher.Constraint("Diameter", 0, 2.0),
    Sketcher.Constraint("DistanceY", 0, 3, 1, 3, Q("0.83 in")),
    Sketcher.Constraint("DistanceX", 2, 3, 1, 3, Q("0.38 in")),
    Sketcher.Constraint("DistanceY", 0, 3, -1, 1, Q("2.165 in")),
    Sketcher.Constraint("DistanceX", -1, 1, 0, 3, Q("1.0024 in")),
])
pocket7 = body.newObject("PartDesign::Pocket", "Pocket006")
pocket7.Profile = sketch10
pocket7.setExpression("Length", "Params.pocket7_length")
pocket7.Reversed = True

doc.recompute()
